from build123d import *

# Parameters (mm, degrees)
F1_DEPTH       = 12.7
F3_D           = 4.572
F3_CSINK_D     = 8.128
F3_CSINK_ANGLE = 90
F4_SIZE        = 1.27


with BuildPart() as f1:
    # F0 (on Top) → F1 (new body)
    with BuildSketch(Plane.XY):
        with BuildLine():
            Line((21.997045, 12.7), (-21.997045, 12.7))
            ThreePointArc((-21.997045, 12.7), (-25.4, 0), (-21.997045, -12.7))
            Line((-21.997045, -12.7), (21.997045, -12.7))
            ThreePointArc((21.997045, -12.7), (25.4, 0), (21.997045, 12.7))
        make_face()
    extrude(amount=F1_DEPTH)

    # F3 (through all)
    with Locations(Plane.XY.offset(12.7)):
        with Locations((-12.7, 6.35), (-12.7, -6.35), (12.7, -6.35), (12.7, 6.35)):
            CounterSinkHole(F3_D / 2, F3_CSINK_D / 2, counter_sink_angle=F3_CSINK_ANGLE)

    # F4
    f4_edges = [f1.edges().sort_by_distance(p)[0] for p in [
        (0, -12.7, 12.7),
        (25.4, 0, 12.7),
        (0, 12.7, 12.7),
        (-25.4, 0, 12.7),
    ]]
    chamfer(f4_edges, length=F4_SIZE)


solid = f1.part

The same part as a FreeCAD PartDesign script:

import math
import FreeCAD as App
import Part
import Sketcher

V = App.Vector
Q = App.Units.Quantity


def edges_at(feature, points):
    """Names of the edges that pass closest to the given points."""
    edges = feature.Shape.Edges
    near = lambda p: min(range(len(edges)), key=lambda i: edges[i].distToShape(Part.Vertex(*p))[0])
    return sorted({f"Edge{near(p) + 1}" for p in points})

doc = App.newDocument("Part")
body = doc.addObject("PartDesign::Body", "Body")

sketch1 = body.newObject("Sketcher::SketchObject", "Sketch")
sketch1.AttachmentSupport = (doc.getObject("XY_Plane"), [""])
sketch1.MapMode = "FlatFace"
sketch1.addGeometry([
    Part.LineSegment(V(22, 13, 0), V(-22, 13, 0)),
    Part.ArcOfCircle(Part.Circle(V(0, 0, 0), V(0, 0, 1), 25), math.radians(150), math.radians(210)),
    Part.LineSegment(V(-22, -13, 0), V(22, -13, 0)),
    Part.ArcOfCircle(Part.Circle(V(0, 0, 0), V(0, 0, 1), 25), math.radians(-30), math.radians(30)),
], False)
sketch1.addConstraint([
    Sketcher.Constraint("Coincident", 0, 2, 1, 1),
    Sketcher.Constraint("Coincident", 1, 2, 2, 1),
    Sketcher.Constraint("Coincident", 2, 2, 3, 1),
    Sketcher.Constraint("Coincident", 3, 2, 0, 1),
    Sketcher.Constraint("Horizontal", 0),
    Sketcher.Constraint("Horizontal", 2),
    Sketcher.Constraint("Coincident", 1, 3, -1, 1),
    Sketcher.Constraint("Coincident", 3, 3, -1, 1),
    Sketcher.Constraint("Equal", 1, 3),
    Sketcher.Constraint("Vertical", 0, 2, 1, 2),
    Sketcher.Constraint("Radius", 1, Q("0.9999999 in")),
    Sketcher.Constraint("DistanceY", 1, 2, 0, 2, Q("1 in")),
])
pad1 = body.newObject("PartDesign::Pad", "Pad")
pad1.Profile = sketch1
pad1.Length = Q("0.5 in")

sketch2 = body.newObject("Sketcher::SketchObject", "Sketch001")
sketch2.AttachmentSupport = (doc.getObject("XY_Plane"), [""])
sketch2.MapMode = "FlatFace"
sketch2.AttachmentOffset = App.Placement(V(0, 0, 0.5 * 25.4), App.Rotation())
sketch2.addGeometry([
    Part.Circle(V(-12.7, 6.3, 0), V(0, 0, 1), 2.3),
    Part.Circle(V(-12.7, -6.3, 0), V(0, 0, 1), 2.3),
    Part.Circle(V(12.7, -6.3, 0), V(0, 0, 1), 2.3),
    Part.Circle(V(12.7, 6.3, 0), V(0, 0, 1), 2.3),
], False)
sketch2.addConstraint([
    Sketcher.Constraint("Equal", 0, 1),
    Sketcher.Constraint("Equal", 1, 2),
    Sketcher.Constraint("Equal", 2, 3),
    Sketcher.Constraint("Symmetric", 0, 3, 2, 3, -1, 1),
    Sketcher.Constraint("Symmetric", 1, 3, 3, 3, -1, 1),
    Sketcher.Constraint("Symmetric", 1, 3, 2, 3, -2),
    Sketcher.Constraint("Diameter", 0, Q("0.18 in")),
    Sketcher.Constraint("DistanceX", 1, 3, 2, 3, Q("1 in")),
    Sketcher.Constraint("DistanceY", 1, 3, 0, 3, Q("0.5 in")),
])
doc.recompute()
hole = body.newObject("PartDesign::Hole", "Hole")
hole.Profile = sketch2
hole.ThreadType = "None"
hole.Diameter = Q("0.18 in")
hole.DepthType = "ThroughAll"
hole.HoleCutType = "Countersink"
hole.HoleCutDiameter = Q("0.32 in")
hole.HoleCutCountersinkAngle = 90
doc.recompute()

chamfer = body.newObject("PartDesign::Chamfer", "Chamfer")
chamfer.Base = (hole, edges_at(hole, [
    (0, -12.7, 12.7),
    (25.4, 0, 12.7),
    (0, 12.7, 12.7),
    (-25.4, 0, 12.7),
]))
chamfer.Size = Q("0.05 in")

doc.recompute()
